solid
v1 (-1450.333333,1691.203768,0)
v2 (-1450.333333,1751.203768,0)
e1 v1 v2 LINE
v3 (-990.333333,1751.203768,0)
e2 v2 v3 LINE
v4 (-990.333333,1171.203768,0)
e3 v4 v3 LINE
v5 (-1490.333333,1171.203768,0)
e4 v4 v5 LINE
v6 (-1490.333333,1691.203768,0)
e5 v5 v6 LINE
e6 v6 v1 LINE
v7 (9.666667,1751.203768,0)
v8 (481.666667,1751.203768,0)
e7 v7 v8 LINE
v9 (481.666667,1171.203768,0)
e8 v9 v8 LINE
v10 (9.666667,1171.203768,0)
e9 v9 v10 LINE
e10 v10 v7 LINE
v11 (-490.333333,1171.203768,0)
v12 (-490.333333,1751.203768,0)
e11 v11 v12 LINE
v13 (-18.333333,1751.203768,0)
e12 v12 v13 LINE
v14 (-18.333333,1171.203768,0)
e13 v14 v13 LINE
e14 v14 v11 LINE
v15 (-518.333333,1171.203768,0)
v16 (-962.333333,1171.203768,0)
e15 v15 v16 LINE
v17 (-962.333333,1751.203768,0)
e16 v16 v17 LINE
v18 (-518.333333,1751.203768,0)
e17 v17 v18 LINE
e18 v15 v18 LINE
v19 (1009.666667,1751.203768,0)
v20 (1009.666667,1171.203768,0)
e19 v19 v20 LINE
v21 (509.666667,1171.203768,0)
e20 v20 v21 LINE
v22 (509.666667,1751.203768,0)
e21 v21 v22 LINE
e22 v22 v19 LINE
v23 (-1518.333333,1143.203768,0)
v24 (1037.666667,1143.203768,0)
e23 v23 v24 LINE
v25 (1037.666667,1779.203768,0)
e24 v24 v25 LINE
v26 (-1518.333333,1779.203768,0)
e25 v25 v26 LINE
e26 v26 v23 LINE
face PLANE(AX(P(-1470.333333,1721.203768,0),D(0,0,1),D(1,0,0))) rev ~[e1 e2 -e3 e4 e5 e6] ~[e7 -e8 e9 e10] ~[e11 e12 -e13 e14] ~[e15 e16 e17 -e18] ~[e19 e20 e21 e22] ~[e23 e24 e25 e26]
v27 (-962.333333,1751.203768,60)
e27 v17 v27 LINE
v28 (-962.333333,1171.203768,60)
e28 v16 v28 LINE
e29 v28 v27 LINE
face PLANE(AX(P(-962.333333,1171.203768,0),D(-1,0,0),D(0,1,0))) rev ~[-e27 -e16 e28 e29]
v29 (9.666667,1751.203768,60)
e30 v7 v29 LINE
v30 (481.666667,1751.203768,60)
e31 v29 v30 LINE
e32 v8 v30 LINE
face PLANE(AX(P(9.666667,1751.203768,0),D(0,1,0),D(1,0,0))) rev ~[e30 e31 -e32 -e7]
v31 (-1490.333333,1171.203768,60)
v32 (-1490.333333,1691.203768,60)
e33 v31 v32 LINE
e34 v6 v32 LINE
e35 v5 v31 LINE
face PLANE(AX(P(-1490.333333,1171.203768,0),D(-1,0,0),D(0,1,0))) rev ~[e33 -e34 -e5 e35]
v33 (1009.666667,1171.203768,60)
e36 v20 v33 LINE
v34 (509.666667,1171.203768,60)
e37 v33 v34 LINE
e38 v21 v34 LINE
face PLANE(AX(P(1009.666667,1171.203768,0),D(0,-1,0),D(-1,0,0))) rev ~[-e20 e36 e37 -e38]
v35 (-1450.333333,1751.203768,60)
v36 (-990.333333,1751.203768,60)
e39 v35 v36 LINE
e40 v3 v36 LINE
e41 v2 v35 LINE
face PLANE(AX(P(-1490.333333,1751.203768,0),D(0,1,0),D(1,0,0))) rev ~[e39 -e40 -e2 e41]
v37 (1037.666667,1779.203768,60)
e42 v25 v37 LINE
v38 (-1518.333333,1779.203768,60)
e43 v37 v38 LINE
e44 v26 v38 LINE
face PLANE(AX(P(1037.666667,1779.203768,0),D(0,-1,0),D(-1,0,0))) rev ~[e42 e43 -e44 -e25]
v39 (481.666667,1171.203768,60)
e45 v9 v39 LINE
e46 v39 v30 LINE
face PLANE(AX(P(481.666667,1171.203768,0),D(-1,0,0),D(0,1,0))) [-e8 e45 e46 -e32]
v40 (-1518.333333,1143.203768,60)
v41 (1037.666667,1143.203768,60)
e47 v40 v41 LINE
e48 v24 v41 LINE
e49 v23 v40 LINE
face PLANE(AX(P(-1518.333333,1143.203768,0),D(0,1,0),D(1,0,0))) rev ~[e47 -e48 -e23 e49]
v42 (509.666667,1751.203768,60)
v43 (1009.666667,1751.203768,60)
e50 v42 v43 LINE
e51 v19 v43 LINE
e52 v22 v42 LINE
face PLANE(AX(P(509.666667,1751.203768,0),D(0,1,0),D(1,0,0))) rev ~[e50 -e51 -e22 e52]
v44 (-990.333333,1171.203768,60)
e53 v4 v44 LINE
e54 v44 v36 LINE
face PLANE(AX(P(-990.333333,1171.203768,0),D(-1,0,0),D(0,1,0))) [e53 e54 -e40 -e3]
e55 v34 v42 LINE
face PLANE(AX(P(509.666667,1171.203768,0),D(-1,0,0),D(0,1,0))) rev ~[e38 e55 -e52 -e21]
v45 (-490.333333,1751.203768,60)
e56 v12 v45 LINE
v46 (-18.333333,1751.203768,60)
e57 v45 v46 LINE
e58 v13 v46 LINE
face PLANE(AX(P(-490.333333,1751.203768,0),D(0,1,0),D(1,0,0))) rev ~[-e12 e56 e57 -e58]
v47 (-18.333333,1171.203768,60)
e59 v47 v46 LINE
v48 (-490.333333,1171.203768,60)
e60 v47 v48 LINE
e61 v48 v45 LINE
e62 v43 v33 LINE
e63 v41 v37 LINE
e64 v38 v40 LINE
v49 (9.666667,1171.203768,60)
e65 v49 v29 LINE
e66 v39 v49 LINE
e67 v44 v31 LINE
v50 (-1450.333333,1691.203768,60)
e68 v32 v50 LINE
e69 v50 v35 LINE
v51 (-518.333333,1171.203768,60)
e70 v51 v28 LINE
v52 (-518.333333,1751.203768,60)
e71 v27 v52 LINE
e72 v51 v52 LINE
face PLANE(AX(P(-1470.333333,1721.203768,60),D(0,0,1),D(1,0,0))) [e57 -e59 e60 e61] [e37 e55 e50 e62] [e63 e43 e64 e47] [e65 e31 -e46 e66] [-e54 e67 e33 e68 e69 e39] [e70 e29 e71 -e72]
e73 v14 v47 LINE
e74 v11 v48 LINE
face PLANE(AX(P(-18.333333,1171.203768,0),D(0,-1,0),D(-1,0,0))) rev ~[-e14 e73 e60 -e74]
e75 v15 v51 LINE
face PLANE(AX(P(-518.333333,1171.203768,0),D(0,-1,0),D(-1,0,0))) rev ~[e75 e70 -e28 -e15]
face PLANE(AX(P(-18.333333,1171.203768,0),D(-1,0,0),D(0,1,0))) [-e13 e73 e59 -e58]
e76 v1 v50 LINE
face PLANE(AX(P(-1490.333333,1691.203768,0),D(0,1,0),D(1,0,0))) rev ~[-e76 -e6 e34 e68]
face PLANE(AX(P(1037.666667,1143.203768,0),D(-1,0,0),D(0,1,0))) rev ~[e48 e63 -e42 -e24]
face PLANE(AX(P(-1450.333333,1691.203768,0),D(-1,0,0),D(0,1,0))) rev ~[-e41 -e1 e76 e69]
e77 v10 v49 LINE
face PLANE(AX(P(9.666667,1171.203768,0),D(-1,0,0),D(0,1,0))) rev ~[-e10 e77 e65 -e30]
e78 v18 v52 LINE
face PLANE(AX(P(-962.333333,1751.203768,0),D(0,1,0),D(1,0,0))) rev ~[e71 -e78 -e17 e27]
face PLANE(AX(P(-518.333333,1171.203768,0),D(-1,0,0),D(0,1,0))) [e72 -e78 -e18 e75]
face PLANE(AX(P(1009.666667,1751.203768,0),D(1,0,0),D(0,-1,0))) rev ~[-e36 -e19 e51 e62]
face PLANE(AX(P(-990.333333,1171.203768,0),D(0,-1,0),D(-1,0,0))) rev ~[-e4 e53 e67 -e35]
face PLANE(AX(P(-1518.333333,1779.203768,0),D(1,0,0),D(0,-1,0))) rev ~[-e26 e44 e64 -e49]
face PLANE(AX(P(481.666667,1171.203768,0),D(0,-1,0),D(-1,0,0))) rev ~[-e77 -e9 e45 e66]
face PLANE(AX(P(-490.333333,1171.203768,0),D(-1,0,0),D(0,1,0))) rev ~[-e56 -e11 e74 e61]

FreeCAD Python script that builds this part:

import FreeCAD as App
import Part
import Sketcher
from FreeCAD import Vector


def add_polygon(sketch, points):
    """Adds a closed chain of lines whose ends are joined by coincident constraints."""
    first, n = sketch.GeometryCount, len(points)
    for a, b in zip(points, points[1:] + points[:1]):
        sketch.addGeometry(Part.LineSegment(App.Vector(*a, 0), App.Vector(*b, 0)), False)
    for i in range(n):
        sketch.addConstraint(Sketcher.Constraint("Coincident", first + i, 2, first + (i + 1) % n, 1))

doc = App.newDocument("Part")
body = doc.addObject("PartDesign::Body", "Body")

sketch1 = body.newObject("Sketcher::SketchObject", "Sketch")
sketch1.AttachmentSupport = (doc.getObject("XY_Plane"), [""])
sketch1.MapMode = "FlatFace"
add_polygon(sketch1, [(1037.666667, 1779.203768), (-1518.333333, 1779.203768), (-1518.333333, 1143.203768), (1037.666667, 1143.203768)])
add_polygon(sketch1, [(1009.666667, 1171.203768), (509.666667, 1171.203768), (509.666667, 1751.203768), (1009.666667, 1751.203768)])
add_polygon(sketch1, [(481.666667, 1171.203768), (9.666667, 1171.203768), (9.666667, 1751.203768), (481.666667, 1751.203768)])
add_polygon(sketch1, [(-18.333333, 1171.203768), (-490.333333, 1171.203768), (-490.333333, 1751.203768), (-18.333333, 1751.203768)])
add_polygon(sketch1, [(-518.333333, 1171.203768), (-962.333333, 1171.203768), (-962.333333, 1751.203768), (-518.333333, 1751.203768)])
add_polygon(sketch1, [(-990.333333, 1171.203768), (-1490.333333, 1171.203768), (-1490.333333, 1751.203768), (-990.333333, 1751.203768)])
sketch1.addConstraint([
    Sketcher.Constraint("Horizontal", 0),
    Sketcher.Constraint("Vertical", 1),
    Sketcher.Constraint("Horizontal", 2),
    Sketcher.Constraint("Vertical", 3),
    Sketcher.Constraint("Horizontal", 4),
    Sketcher.Constraint("Vertical", 5),
    Sketcher.Constraint("Horizontal", 6),
    Sketcher.Constraint("Vertical", 7),
    Sketcher.Constraint("Horizontal", 8),
    Sketcher.Constraint("Vertical", 9),
    Sketcher.Constraint("Horizontal", 10),
    Sketcher.Constraint("Vertical", 11),
    Sketcher.Constraint("Horizontal", 12),
    Sketcher.Constraint("Vertical", 13),
    Sketcher.Constraint("Horizontal", 14),
    Sketcher.Constraint("Vertical", 15),
    Sketcher.Constraint("Horizontal", 16),
    Sketcher.Constraint("Vertical", 17),
    Sketcher.Constraint("Horizontal", 18),
    Sketcher.Constraint("Vertical", 19),
    Sketcher.Constraint("Horizontal", 20),
    Sketcher.Constraint("Vertical", 21),
    Sketcher.Constraint("Horizontal", 22),
    Sketcher.Constraint("Vertical", 23),
    Sketcher.Constraint("Horizontal", 7, 2, 8, 2),
    Sketcher.Constraint("Horizontal", 6, 2, 9, 2),
    Sketcher.Constraint("Horizontal", 11, 2, 12, 2),
    Sketcher.Constraint("Horizontal", 10, 2, 13, 2),
    Sketcher.Constraint("Horizontal", 15, 2, 16, 2),
    Sketcher.Constraint("Horizontal", 14, 2, 17, 2),
    Sketcher.Constraint("Horizontal", 19, 2, 20, 2),
    Sketcher.Constraint("Horizontal", 18, 2, 21, 2),
    Sketcher.Constraint("Equal", 10, 12),
    Sketcher.Constraint("Equal", 6, 20),
    Sketcher.Constraint("DistanceX", 0, 2, 0, 1, 2556.0),
    Sketcher.Constraint("DistanceX", 4, 2, 4, 1, 500.0),
    Sketcher.Constraint("DistanceX", 8, 2, 8, 1, 472.0),
    Sketcher.Constraint("DistanceX", 16, 2, 16, 1, 444.0),
    Sketcher.Constraint("DistanceY", 1, 2, 1, 1, 636.0),
    Sketcher.Constraint("DistanceY", 5, 1, 5, 2, 580.0),
    Sketcher.Constraint("DistanceX", 4, 2, 2, 2, 528.0),
    Sketcher.Constraint("DistanceY", 2, 2, 4, 2, 28.0),
    Sketcher.Constraint("DistanceX", 8, 2, 4, 2, 500.0),
    Sketcher.Constraint("DistanceX", 12, 2, 8, 2, 500.0),
    Sketcher.Constraint("DistanceX", 16, 2, 12, 2, 472.0),
    Sketcher.Constraint("DistanceX", 1, 2, 20, 2, 28.0),
    Sketcher.Constraint("DistanceY", -1, 1, 0, 2, 1779.203768),
    Sketcher.Constraint("DistanceX", 0, 2, -1, 1, 1518.333333),
])
pad1 = body.newObject("PartDesign::Pad", "Pad")
pad1.Profile = sketch1
pad1.Length = 60

sketch2 = body.newObject("Sketcher::SketchObject", "Sketch001")
sketch2.AttachmentSupport = (doc.getObject("XY_Plane"), [""])
sketch2.MapMode = "FlatFace"
add_polygon(sketch2, [(-1490.333333, 1751.203768), (-1490.333333, 1691.203768), (-1450.333333, 1691.203768), (-1450.333333, 1751.203768)])
sketch2.addConstraint([
    Sketcher.Constraint("Vertical", 0),
    Sketcher.Constraint("Horizontal", 1),
    Sketcher.Constraint("Vertical", 2),
    Sketcher.Constraint("Horizontal", 3),
    Sketcher.Constraint("DistanceX", 1, 1, 1, 2, 40.0),
    Sketcher.Constraint("DistanceY", 0, 2, 0, 1, 60.0),
    Sketcher.Constraint("DistanceY", -1, 1, 0, 2, 1691.203768),
    Sketcher.Constraint("DistanceX", 0, 2, -1, 1, 1490.333333),
])
pad2 = body.newObject("PartDesign::Pad", "Pad001")
pad2.Profile = sketch2
pad2.Length = 60

doc.recompute()
